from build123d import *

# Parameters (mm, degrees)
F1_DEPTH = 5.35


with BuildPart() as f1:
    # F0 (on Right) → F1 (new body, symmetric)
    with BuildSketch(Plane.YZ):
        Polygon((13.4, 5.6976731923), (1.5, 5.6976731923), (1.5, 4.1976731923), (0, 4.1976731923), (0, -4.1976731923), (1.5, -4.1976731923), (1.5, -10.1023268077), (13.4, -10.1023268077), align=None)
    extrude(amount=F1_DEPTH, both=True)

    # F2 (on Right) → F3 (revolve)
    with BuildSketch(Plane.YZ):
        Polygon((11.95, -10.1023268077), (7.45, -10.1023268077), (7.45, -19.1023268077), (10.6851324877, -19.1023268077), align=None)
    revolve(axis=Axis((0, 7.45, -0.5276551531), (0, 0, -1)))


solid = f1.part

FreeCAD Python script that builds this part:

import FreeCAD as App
import Part
import Sketcher

V = App.Vector
Q = App.Units.Quantity

doc = App.newDocument("Part")
body = doc.addObject("PartDesign::Body", "Body")

# Sketch on YZ plane
sketch1 = body.newObject("Sketcher::SketchObject", "Sketch")
sketch1.AttachmentSupport = (doc.getObject("YZ_Plane"), [""])
sketch1.MapMode = "FlatFace"
sketch1.addGeometry([
    Part.LineSegment(V(13.4, 5.697673, 0), V(1.5, 5.697673, 0)),  # 0
    Part.LineSegment(V(1.5, 5.697673, 0), V(1.5, 4.197673, 0)),  # 1
    Part.LineSegment(V(1.5, 4.197673, 0), V(0, 4.197673, 0)),  # 2
    Part.LineSegment(V(0, 4.197673, 0), V(0, -4.197673, 0)),  # 3
    Part.LineSegment(V(0, -4.197673, 0), V(1.5, -4.197673, 0)),  # 4
    Part.LineSegment(V(1.5, -4.197673, 0), V(1.5, -10.102327, 0)),  # 5
    Part.LineSegment(V(1.5, -10.102327, 0), V(13.4, -10.102327, 0)),  # 6
    Part.LineSegment(V(13.4, -10.102327, 0), V(13.4, 5.697673, 0)),  # 7
], False)
sketch1.addConstraint([
    Sketcher.Constraint("Coincident", 0, 2, 1, 1),
    Sketcher.Constraint("Coincident", 1, 2, 2, 1),
    Sketcher.Constraint("Coincident", 2, 2, 3, 1),
    Sketcher.Constraint("Coincident", 3, 2, 4, 1),
    Sketcher.Constraint("Coincident", 4, 2, 5, 1),
    Sketcher.Constraint("Coincident", 5, 2, 6, 1),
    Sketcher.Constraint("Coincident", 6, 2, 7, 1),
    Sketcher.Constraint("Coincident", 7, 2, 0, 1),
    Sketcher.Constraint("Horizontal", 0),
    Sketcher.Constraint("Vertical", 1),
    Sketcher.Constraint("Horizontal", 2),
    Sketcher.Constraint("Vertical", 3),
    Sketcher.Constraint("Horizontal", 4),
    Sketcher.Constraint("Vertical", 5),
    Sketcher.Constraint("Horizontal", 6),
    Sketcher.Constraint("Vertical", 7),
    Sketcher.Constraint("Symmetric", 2, 2, 3, 2, -1, 1),
    Sketcher.Constraint("Vertical", 1, 2, 4, 2),
    Sketcher.Constraint("Equal", 4, 1),
    Sketcher.Constraint("DistanceX", 0, 2, 0, 1, Q("11.9 mm")),
    Sketcher.Constraint("DistanceX", 2, 2, 2, 1, Q("1.5 mm")),
    Sketcher.Constraint("DistanceY", 7, 1, 7, 2, Q("15.8 mm")),
    Sketcher.Constraint("DistanceY", 3, 2, 3, 1, Q("8.395346 mm")),
])
pad1 = body.newObject("PartDesign::Pad", "Pad")
pad1.Profile = sketch1
pad1.Length = 10.7
pad1.Midplane = True

# Sketch on YZ plane
sketch2 = body.newObject("Sketcher::SketchObject", "Sketch001")
sketch2.AttachmentSupport = (doc.getObject("YZ_Plane"), [""])
sketch2.MapMode = "FlatFace"
sketch2.addGeometry([
    Part.LineSegment(V(11.95, -10.102327, 0), V(7.45, -10.102327, 0)),
    Part.LineSegment(V(7.45, -10.102327, 0), V(7.45, -19.102327, 0)),
    Part.LineSegment(V(7.45, -19.102327, 0), V(10.685132, -19.102327, 0)),
    Part.LineSegment(V(10.685132, -19.102327, 0), V(11.95, -10.102327, 0)),
], False)
sketch2.addGeometry(Part.LineSegment(V(7.45, -10.102327, 0), V(7.45, -19.102327, 0)), True)  # axis
sketch2.addConstraint([
    Sketcher.Constraint("Coincident", 0, 2, 1, 1),
    Sketcher.Constraint("Coincident", 1, 2, 2, 1),
    Sketcher.Constraint("Coincident", 2, 2, 3, 1),
    Sketcher.Constraint("Coincident", 3, 2, 0, 1),
    Sketcher.Constraint("Horizontal", 0),
    Sketcher.Constraint("Vertical", 1),
    Sketcher.Constraint("Horizontal", 2),
    Sketcher.Constraint("Vertical", 4),
    Sketcher.Constraint("Coincident", 4, 1, 0, 2),
    Sketcher.Constraint("Horizontal", 2, 2, 4, 2),
    Sketcher.Constraint("DistanceY", 1, 2, 1, 1, Q("9 mm")),
    Sketcher.Constraint("Angle", 3, Q("82 deg")),
    Sketcher.Constraint("DistanceX", 0, 2, 0, 1, Q("4.5 mm")),
    Sketcher.Constraint("DistanceX", -1, 1, 0, 2, Q("7.45 mm")),
    Sketcher.Constraint("DistanceY", 0, 2, -1, 1, Q("10.102327 mm")),
])
revolution = body.newObject("PartDesign::Revolution", "Revolution")
revolution.Profile = sketch2
revolution.ReferenceAxis = (sketch2, ["Axis0"])
revolution.Angle = 360

doc.recompute()
